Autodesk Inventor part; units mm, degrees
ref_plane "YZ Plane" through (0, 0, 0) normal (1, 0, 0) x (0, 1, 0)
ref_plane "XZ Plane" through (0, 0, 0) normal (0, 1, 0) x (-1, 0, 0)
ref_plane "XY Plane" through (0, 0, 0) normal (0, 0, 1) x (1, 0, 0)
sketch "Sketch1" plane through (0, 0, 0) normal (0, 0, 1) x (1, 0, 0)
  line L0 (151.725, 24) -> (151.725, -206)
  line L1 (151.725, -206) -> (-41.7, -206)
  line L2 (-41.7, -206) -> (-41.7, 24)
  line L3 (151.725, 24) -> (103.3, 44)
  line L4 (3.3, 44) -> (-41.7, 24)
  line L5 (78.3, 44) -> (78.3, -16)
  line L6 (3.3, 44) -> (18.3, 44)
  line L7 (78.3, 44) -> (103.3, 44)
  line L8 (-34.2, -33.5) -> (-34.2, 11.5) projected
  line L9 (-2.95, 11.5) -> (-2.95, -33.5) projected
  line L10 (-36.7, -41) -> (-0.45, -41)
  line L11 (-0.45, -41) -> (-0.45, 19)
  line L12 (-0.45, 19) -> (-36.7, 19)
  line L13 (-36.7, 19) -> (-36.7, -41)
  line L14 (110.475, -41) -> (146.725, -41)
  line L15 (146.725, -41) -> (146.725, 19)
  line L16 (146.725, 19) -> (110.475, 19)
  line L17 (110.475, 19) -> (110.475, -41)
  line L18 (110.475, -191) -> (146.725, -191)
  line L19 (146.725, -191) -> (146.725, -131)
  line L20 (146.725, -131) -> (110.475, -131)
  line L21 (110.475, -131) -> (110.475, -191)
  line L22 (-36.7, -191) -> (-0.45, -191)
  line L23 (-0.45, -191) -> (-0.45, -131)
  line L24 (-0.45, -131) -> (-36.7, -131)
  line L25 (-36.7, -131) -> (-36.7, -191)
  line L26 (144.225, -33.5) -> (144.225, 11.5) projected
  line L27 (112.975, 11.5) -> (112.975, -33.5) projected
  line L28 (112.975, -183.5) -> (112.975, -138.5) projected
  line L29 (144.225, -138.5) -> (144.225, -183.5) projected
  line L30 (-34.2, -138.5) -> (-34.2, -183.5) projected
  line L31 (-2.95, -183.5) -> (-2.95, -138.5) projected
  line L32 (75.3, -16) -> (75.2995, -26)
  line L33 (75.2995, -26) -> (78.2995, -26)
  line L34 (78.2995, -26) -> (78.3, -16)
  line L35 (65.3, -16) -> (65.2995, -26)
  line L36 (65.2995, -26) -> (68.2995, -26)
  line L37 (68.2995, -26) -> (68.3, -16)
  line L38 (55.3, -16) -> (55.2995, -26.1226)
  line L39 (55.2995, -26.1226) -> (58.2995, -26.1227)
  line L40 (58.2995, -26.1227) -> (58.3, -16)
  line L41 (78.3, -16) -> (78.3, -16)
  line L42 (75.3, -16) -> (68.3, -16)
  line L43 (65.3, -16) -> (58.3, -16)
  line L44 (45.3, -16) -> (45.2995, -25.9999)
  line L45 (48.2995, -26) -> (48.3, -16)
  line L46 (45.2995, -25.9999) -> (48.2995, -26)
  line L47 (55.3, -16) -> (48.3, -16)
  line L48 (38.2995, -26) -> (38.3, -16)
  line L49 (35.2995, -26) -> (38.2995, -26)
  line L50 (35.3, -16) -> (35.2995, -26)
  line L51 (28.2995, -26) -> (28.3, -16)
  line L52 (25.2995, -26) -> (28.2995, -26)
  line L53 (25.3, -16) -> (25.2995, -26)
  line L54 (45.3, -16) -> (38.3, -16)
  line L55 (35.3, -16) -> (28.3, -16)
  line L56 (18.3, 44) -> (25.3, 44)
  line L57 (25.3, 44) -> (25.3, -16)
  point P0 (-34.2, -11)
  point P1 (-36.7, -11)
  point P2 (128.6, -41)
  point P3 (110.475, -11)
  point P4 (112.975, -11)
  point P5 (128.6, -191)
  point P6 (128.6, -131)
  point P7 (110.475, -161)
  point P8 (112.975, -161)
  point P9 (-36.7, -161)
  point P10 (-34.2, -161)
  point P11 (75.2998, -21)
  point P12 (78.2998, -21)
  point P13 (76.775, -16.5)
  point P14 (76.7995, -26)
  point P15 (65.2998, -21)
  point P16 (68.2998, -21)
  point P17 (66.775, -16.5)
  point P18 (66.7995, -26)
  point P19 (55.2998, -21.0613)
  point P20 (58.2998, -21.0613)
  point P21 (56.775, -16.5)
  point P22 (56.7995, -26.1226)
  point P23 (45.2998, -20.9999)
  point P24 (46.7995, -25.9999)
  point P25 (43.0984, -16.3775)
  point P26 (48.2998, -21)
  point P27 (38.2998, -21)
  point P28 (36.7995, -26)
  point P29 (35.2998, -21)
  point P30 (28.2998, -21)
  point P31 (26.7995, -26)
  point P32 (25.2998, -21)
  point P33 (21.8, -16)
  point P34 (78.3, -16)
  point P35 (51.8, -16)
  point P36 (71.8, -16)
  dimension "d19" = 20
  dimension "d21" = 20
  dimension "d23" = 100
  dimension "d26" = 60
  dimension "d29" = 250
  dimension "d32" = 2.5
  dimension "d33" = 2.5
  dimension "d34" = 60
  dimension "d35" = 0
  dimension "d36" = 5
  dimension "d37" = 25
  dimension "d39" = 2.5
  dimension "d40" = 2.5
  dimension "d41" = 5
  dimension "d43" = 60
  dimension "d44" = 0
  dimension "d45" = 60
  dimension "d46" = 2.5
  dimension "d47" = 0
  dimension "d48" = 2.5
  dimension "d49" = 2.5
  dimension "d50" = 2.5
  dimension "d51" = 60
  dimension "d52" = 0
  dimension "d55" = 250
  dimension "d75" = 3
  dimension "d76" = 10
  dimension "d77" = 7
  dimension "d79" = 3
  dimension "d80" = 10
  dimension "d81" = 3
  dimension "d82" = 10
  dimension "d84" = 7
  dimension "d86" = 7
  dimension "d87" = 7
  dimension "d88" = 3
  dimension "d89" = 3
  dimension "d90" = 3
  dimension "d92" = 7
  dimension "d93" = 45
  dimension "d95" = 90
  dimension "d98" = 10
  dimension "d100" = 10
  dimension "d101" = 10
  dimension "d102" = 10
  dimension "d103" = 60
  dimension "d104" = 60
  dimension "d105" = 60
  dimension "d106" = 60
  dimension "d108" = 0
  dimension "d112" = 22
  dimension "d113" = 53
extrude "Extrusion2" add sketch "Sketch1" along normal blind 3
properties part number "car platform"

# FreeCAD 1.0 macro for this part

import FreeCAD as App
import Part
import Sketcher

V = App.Vector
Q = App.Units.Quantity


def add_polygon(sketch, points):
    """Adds a closed chain of lines whose ends are joined by coincident constraints."""
    first, n = sketch.GeometryCount, len(points)
    for a, b in zip(points, points[1:] + points[:1]):
        sketch.addGeometry(Part.LineSegment(App.Vector(*a, 0), App.Vector(*b, 0)), False)
    for i in range(n):
        sketch.addConstraint(Sketcher.Constraint("Coincident", first + i, 2, first + (i + 1) % n, 1))

doc = App.newDocument("Part")
params = doc.addObject("Spreadsheet::Sheet", "Params")
for row, (alias, value) in enumerate([
    ("sketch1_width", "25 mm"),
    ("sketch1_width2", "3 mm"),
    ("sketch1_width3", "7 mm"),
    ("sketch1_width4", "22 mm"),
    ("sketch1_height", "60 mm"),
    ("pad1_length", "3 mm"),
], start=1):
    params.set(f"A{row}", alias)
    params.set(f"B{row}", "=" + value)
    params.setAlias(f"B{row}", alias)

body = doc.addObject("PartDesign::Body", "Body")

sketch1 = body.newObject("Sketcher::SketchObject", "Sketch")
sketch1.AttachmentSupport = (doc.getObject("XY_Plane"), [""])
sketch1.MapMode = "FlatFace"
add_polygon(sketch1, [(151.7, -206), (151.7, 24), (103.3, 44), (78.3, 44), (78.3, -16), (78.3, -26), (75.3, -26), (75.3, -16), (68.3, -16), (68.3, -26), (65.3, -26), (65.3, -16), (58.3, -16), (58.3, -26.1), (55.3, -26.1), (55.3, -16), (48.3, -16), (48.3, -26), (45.3, -26), (45.3, -16), (38.3, -16), (38.3, -26), (35.3, -26), (35.3, -16), (28.3, -16), (28.3, -26), (25.3, -26), (25.3, -16), (25.3, 44), (3.3, 44), (-41.7, 24), (-41.7, -206)])
add_polygon(sketch1, [(-0.5, -191), (-36.7, -191), (-36.7, -131), (-0.5, -131)])
add_polygon(sketch1, [(146.7, -191), (110.5, -191), (110.5, -131), (146.7, -131)])
add_polygon(sketch1, [(-0.5, -41), (-36.7, -41), (-36.7, 19), (-0.5, 19)])
add_polygon(sketch1, [(146.7, -41), (110.5, -41), (110.5, 19), (146.7, 19)])
sketch1.addConstraint([
    Sketcher.Constraint("Vertical", 0),
    Sketcher.Constraint("Horizontal", 2),
    Sketcher.Constraint("Vertical", 3),
    Sketcher.Constraint("Horizontal", 5),
    Sketcher.Constraint("Horizontal", 7),
    Sketcher.Constraint("Horizontal", 9),
    Sketcher.Constraint("Horizontal", 11),
    Sketcher.Constraint("Horizontal", 13),
    Sketcher.Constraint("Horizontal", 15),
    Sketcher.Constraint("Horizontal", 17),
    Sketcher.Constraint("Horizontal", 19),
    Sketcher.Constraint("Horizontal", 21),
    Sketcher.Constraint("Horizontal", 23),
    Sketcher.Constraint("Horizontal", 25),
    Sketcher.Constraint("Vertical", 27),
    Sketcher.Constraint("Horizontal", 28),
    Sketcher.Constraint("Vertical", 30),
    Sketcher.Constraint("Horizontal", 31),
    Sketcher.Constraint("Horizontal", 32),
    Sketcher.Constraint("Vertical", 33),
    Sketcher.Constraint("Horizontal", 34),
    Sketcher.Constraint("Vertical", 35),
    Sketcher.Constraint("Horizontal", 36),
    Sketcher.Constraint("Vertical", 37),
    Sketcher.Constraint("Horizontal", 38),
    Sketcher.Constraint("Vertical", 39),
    Sketcher.Constraint("Horizontal", 40),
    Sketcher.Constraint("Vertical", 41),
    Sketcher.Constraint("Horizontal", 42),
    Sketcher.Constraint("Vertical", 43),
    Sketcher.Constraint("Horizontal", 44),
    Sketcher.Constraint("Vertical", 45),
    Sketcher.Constraint("Horizontal", 46),
    Sketcher.Constraint("Vertical", 47),
    Sketcher.Constraint("Parallel", 4, 6),
    Sketcher.Constraint("Parallel", 6, 8),
    Sketcher.Constraint("Parallel", 8, 10),
    Sketcher.Constraint("Parallel", 10, 12),
    Sketcher.Constraint("Parallel", 12, 14),
    Sketcher.Constraint("Parallel", 14, 16),
    Sketcher.Constraint("Parallel", 16, 18),
    Sketcher.Constraint("Parallel", 18, 20),
    Sketcher.Constraint("Parallel", 20, 22),
    Sketcher.Constraint("Parallel", 22, 24),
    Sketcher.Constraint("Parallel", 24, 26),
    Sketcher.Constraint("Horizontal", 3, 2, 6, 2),
    Sketcher.Constraint("Horizontal", 5, 2, 8, 2),
    Sketcher.Constraint("Horizontal", 7, 2, 10, 2),
    Sketcher.Constraint("Horizontal", 11, 2, 14, 2),
    Sketcher.Constraint("Horizontal", 9, 2, 16, 2),
    Sketcher.Constraint("Horizontal", 15, 2, 18, 2),
    Sketcher.Constraint("Horizontal", 17, 2, 20, 2),
    Sketcher.Constraint("Horizontal", 19, 2, 22, 2),
    Sketcher.Constraint("Horizontal", 21, 2, 24, 2),
    Sketcher.Constraint("Horizontal", 23, 2, 26, 2),
    Sketcher.Constraint("Horizontal", 2, 2, 27, 2),
    Sketcher.Constraint("Horizontal", 0, 2, 29, 2),
    Sketcher.Constraint("Horizontal", 35, 2, 36, 2),
    Sketcher.Constraint("Horizontal", 34, 2, 37, 2),
    Sketcher.Constraint("Horizontal", 43, 2, 44, 2),
    Sketcher.Constraint("Horizontal", 42, 2, 45, 2),
    Sketcher.Constraint("Vertical", 33, 2, 40, 2),
    Sketcher.Constraint("Vertical", 35, 2, 42, 2),
    Sketcher.Constraint("Vertical", 37, 2, 44, 2),
    Sketcher.Constraint("Vertical", 39, 2, 46, 2),
    Sketcher.Constraint("Equal", 5, 9),
    Sketcher.Constraint("Equal", 7, 11),
    Sketcher.Constraint("Equal", 9, 13),
    Sketcher.Constraint("Equal", 11, 15),
    Sketcher.Constraint("Equal", 13, 17),
    Sketcher.Constraint("Equal", 15, 19),
    Sketcher.Constraint("Equal", 17, 21),
    Sketcher.Constraint("Equal", 19, 23),
    Sketcher.Constraint("Equal", 21, 25),
    Sketcher.Constraint("Equal", 34, 36),
    Sketcher.Constraint("Equal", 27, 33),
    Sketcher.Constraint("Equal", 39, 41),
    Sketcher.Constraint("DistanceX", 2, 2, 2, 1, 25.0),
    Sketcher.Constraint("DistanceX", 5, 2, 5, 1, 3.0),
    Sketcher.Constraint("DistanceX", 7, 2, 7, 1, 7.0),
    Sketcher.Constraint("DistanceX", 28, 2, 28, 1, 22.0),
    Sketcher.Constraint("DistanceY", 3, 2, 3, 1, 60.0),
    Sketcher.Constraint("Distance", 4, 10.0),
    Sketcher.Constraint("DistanceY", 0, 2, 1, 2, 20.0),
    Sketcher.Constraint("DistanceX", 12, 2, 9, 2, 7.0),
    Sketcher.Constraint("DistanceX", 29, 2, 28, 2, 45.0),
    Sketcher.Constraint("DistanceX", 30, 2, 32, 2, 5.0),
    Sketcher.Constraint("DistanceX", 38, 2, 31, 2, 5.0),
    Sketcher.Constraint("DistanceY", 40, 2, 26, 2, 25.0),
    Sketcher.Constraint("DistanceY", 0, 1, 0, 2, 230.0),
    Sketcher.Constraint("DistanceY", -1, 1, 0, 2, 24.0),
    Sketcher.Constraint("DistanceY", 32, 2, -1, 1, 191.0),
    Sketcher.Constraint("DistanceX", 32, 2, 32, 1, 36.25),
    Sketcher.Constraint("DistanceX", -1, 1, 1, 2, 103.3),
    Sketcher.Constraint("Angle", 1, Q("157.559 deg")),
    Sketcher.Constraint("Distance", 12, 10.1227),
])
sketch1.setExpression("Constraints[125]", "Params.sketch1_width")
sketch1.setExpression("Constraints[126]", "Params.sketch1_width2")
sketch1.setExpression("Constraints[127]", "Params.sketch1_width3")
sketch1.setExpression("Constraints[128]", "Params.sketch1_width4")
sketch1.setExpression("Constraints[129]", "Params.sketch1_height")
pad1 = body.newObject("PartDesign::Pad", "Pad")
pad1.Profile = sketch1
pad1.setExpression("Length", "Params.pad1_length")

doc.recompute()
